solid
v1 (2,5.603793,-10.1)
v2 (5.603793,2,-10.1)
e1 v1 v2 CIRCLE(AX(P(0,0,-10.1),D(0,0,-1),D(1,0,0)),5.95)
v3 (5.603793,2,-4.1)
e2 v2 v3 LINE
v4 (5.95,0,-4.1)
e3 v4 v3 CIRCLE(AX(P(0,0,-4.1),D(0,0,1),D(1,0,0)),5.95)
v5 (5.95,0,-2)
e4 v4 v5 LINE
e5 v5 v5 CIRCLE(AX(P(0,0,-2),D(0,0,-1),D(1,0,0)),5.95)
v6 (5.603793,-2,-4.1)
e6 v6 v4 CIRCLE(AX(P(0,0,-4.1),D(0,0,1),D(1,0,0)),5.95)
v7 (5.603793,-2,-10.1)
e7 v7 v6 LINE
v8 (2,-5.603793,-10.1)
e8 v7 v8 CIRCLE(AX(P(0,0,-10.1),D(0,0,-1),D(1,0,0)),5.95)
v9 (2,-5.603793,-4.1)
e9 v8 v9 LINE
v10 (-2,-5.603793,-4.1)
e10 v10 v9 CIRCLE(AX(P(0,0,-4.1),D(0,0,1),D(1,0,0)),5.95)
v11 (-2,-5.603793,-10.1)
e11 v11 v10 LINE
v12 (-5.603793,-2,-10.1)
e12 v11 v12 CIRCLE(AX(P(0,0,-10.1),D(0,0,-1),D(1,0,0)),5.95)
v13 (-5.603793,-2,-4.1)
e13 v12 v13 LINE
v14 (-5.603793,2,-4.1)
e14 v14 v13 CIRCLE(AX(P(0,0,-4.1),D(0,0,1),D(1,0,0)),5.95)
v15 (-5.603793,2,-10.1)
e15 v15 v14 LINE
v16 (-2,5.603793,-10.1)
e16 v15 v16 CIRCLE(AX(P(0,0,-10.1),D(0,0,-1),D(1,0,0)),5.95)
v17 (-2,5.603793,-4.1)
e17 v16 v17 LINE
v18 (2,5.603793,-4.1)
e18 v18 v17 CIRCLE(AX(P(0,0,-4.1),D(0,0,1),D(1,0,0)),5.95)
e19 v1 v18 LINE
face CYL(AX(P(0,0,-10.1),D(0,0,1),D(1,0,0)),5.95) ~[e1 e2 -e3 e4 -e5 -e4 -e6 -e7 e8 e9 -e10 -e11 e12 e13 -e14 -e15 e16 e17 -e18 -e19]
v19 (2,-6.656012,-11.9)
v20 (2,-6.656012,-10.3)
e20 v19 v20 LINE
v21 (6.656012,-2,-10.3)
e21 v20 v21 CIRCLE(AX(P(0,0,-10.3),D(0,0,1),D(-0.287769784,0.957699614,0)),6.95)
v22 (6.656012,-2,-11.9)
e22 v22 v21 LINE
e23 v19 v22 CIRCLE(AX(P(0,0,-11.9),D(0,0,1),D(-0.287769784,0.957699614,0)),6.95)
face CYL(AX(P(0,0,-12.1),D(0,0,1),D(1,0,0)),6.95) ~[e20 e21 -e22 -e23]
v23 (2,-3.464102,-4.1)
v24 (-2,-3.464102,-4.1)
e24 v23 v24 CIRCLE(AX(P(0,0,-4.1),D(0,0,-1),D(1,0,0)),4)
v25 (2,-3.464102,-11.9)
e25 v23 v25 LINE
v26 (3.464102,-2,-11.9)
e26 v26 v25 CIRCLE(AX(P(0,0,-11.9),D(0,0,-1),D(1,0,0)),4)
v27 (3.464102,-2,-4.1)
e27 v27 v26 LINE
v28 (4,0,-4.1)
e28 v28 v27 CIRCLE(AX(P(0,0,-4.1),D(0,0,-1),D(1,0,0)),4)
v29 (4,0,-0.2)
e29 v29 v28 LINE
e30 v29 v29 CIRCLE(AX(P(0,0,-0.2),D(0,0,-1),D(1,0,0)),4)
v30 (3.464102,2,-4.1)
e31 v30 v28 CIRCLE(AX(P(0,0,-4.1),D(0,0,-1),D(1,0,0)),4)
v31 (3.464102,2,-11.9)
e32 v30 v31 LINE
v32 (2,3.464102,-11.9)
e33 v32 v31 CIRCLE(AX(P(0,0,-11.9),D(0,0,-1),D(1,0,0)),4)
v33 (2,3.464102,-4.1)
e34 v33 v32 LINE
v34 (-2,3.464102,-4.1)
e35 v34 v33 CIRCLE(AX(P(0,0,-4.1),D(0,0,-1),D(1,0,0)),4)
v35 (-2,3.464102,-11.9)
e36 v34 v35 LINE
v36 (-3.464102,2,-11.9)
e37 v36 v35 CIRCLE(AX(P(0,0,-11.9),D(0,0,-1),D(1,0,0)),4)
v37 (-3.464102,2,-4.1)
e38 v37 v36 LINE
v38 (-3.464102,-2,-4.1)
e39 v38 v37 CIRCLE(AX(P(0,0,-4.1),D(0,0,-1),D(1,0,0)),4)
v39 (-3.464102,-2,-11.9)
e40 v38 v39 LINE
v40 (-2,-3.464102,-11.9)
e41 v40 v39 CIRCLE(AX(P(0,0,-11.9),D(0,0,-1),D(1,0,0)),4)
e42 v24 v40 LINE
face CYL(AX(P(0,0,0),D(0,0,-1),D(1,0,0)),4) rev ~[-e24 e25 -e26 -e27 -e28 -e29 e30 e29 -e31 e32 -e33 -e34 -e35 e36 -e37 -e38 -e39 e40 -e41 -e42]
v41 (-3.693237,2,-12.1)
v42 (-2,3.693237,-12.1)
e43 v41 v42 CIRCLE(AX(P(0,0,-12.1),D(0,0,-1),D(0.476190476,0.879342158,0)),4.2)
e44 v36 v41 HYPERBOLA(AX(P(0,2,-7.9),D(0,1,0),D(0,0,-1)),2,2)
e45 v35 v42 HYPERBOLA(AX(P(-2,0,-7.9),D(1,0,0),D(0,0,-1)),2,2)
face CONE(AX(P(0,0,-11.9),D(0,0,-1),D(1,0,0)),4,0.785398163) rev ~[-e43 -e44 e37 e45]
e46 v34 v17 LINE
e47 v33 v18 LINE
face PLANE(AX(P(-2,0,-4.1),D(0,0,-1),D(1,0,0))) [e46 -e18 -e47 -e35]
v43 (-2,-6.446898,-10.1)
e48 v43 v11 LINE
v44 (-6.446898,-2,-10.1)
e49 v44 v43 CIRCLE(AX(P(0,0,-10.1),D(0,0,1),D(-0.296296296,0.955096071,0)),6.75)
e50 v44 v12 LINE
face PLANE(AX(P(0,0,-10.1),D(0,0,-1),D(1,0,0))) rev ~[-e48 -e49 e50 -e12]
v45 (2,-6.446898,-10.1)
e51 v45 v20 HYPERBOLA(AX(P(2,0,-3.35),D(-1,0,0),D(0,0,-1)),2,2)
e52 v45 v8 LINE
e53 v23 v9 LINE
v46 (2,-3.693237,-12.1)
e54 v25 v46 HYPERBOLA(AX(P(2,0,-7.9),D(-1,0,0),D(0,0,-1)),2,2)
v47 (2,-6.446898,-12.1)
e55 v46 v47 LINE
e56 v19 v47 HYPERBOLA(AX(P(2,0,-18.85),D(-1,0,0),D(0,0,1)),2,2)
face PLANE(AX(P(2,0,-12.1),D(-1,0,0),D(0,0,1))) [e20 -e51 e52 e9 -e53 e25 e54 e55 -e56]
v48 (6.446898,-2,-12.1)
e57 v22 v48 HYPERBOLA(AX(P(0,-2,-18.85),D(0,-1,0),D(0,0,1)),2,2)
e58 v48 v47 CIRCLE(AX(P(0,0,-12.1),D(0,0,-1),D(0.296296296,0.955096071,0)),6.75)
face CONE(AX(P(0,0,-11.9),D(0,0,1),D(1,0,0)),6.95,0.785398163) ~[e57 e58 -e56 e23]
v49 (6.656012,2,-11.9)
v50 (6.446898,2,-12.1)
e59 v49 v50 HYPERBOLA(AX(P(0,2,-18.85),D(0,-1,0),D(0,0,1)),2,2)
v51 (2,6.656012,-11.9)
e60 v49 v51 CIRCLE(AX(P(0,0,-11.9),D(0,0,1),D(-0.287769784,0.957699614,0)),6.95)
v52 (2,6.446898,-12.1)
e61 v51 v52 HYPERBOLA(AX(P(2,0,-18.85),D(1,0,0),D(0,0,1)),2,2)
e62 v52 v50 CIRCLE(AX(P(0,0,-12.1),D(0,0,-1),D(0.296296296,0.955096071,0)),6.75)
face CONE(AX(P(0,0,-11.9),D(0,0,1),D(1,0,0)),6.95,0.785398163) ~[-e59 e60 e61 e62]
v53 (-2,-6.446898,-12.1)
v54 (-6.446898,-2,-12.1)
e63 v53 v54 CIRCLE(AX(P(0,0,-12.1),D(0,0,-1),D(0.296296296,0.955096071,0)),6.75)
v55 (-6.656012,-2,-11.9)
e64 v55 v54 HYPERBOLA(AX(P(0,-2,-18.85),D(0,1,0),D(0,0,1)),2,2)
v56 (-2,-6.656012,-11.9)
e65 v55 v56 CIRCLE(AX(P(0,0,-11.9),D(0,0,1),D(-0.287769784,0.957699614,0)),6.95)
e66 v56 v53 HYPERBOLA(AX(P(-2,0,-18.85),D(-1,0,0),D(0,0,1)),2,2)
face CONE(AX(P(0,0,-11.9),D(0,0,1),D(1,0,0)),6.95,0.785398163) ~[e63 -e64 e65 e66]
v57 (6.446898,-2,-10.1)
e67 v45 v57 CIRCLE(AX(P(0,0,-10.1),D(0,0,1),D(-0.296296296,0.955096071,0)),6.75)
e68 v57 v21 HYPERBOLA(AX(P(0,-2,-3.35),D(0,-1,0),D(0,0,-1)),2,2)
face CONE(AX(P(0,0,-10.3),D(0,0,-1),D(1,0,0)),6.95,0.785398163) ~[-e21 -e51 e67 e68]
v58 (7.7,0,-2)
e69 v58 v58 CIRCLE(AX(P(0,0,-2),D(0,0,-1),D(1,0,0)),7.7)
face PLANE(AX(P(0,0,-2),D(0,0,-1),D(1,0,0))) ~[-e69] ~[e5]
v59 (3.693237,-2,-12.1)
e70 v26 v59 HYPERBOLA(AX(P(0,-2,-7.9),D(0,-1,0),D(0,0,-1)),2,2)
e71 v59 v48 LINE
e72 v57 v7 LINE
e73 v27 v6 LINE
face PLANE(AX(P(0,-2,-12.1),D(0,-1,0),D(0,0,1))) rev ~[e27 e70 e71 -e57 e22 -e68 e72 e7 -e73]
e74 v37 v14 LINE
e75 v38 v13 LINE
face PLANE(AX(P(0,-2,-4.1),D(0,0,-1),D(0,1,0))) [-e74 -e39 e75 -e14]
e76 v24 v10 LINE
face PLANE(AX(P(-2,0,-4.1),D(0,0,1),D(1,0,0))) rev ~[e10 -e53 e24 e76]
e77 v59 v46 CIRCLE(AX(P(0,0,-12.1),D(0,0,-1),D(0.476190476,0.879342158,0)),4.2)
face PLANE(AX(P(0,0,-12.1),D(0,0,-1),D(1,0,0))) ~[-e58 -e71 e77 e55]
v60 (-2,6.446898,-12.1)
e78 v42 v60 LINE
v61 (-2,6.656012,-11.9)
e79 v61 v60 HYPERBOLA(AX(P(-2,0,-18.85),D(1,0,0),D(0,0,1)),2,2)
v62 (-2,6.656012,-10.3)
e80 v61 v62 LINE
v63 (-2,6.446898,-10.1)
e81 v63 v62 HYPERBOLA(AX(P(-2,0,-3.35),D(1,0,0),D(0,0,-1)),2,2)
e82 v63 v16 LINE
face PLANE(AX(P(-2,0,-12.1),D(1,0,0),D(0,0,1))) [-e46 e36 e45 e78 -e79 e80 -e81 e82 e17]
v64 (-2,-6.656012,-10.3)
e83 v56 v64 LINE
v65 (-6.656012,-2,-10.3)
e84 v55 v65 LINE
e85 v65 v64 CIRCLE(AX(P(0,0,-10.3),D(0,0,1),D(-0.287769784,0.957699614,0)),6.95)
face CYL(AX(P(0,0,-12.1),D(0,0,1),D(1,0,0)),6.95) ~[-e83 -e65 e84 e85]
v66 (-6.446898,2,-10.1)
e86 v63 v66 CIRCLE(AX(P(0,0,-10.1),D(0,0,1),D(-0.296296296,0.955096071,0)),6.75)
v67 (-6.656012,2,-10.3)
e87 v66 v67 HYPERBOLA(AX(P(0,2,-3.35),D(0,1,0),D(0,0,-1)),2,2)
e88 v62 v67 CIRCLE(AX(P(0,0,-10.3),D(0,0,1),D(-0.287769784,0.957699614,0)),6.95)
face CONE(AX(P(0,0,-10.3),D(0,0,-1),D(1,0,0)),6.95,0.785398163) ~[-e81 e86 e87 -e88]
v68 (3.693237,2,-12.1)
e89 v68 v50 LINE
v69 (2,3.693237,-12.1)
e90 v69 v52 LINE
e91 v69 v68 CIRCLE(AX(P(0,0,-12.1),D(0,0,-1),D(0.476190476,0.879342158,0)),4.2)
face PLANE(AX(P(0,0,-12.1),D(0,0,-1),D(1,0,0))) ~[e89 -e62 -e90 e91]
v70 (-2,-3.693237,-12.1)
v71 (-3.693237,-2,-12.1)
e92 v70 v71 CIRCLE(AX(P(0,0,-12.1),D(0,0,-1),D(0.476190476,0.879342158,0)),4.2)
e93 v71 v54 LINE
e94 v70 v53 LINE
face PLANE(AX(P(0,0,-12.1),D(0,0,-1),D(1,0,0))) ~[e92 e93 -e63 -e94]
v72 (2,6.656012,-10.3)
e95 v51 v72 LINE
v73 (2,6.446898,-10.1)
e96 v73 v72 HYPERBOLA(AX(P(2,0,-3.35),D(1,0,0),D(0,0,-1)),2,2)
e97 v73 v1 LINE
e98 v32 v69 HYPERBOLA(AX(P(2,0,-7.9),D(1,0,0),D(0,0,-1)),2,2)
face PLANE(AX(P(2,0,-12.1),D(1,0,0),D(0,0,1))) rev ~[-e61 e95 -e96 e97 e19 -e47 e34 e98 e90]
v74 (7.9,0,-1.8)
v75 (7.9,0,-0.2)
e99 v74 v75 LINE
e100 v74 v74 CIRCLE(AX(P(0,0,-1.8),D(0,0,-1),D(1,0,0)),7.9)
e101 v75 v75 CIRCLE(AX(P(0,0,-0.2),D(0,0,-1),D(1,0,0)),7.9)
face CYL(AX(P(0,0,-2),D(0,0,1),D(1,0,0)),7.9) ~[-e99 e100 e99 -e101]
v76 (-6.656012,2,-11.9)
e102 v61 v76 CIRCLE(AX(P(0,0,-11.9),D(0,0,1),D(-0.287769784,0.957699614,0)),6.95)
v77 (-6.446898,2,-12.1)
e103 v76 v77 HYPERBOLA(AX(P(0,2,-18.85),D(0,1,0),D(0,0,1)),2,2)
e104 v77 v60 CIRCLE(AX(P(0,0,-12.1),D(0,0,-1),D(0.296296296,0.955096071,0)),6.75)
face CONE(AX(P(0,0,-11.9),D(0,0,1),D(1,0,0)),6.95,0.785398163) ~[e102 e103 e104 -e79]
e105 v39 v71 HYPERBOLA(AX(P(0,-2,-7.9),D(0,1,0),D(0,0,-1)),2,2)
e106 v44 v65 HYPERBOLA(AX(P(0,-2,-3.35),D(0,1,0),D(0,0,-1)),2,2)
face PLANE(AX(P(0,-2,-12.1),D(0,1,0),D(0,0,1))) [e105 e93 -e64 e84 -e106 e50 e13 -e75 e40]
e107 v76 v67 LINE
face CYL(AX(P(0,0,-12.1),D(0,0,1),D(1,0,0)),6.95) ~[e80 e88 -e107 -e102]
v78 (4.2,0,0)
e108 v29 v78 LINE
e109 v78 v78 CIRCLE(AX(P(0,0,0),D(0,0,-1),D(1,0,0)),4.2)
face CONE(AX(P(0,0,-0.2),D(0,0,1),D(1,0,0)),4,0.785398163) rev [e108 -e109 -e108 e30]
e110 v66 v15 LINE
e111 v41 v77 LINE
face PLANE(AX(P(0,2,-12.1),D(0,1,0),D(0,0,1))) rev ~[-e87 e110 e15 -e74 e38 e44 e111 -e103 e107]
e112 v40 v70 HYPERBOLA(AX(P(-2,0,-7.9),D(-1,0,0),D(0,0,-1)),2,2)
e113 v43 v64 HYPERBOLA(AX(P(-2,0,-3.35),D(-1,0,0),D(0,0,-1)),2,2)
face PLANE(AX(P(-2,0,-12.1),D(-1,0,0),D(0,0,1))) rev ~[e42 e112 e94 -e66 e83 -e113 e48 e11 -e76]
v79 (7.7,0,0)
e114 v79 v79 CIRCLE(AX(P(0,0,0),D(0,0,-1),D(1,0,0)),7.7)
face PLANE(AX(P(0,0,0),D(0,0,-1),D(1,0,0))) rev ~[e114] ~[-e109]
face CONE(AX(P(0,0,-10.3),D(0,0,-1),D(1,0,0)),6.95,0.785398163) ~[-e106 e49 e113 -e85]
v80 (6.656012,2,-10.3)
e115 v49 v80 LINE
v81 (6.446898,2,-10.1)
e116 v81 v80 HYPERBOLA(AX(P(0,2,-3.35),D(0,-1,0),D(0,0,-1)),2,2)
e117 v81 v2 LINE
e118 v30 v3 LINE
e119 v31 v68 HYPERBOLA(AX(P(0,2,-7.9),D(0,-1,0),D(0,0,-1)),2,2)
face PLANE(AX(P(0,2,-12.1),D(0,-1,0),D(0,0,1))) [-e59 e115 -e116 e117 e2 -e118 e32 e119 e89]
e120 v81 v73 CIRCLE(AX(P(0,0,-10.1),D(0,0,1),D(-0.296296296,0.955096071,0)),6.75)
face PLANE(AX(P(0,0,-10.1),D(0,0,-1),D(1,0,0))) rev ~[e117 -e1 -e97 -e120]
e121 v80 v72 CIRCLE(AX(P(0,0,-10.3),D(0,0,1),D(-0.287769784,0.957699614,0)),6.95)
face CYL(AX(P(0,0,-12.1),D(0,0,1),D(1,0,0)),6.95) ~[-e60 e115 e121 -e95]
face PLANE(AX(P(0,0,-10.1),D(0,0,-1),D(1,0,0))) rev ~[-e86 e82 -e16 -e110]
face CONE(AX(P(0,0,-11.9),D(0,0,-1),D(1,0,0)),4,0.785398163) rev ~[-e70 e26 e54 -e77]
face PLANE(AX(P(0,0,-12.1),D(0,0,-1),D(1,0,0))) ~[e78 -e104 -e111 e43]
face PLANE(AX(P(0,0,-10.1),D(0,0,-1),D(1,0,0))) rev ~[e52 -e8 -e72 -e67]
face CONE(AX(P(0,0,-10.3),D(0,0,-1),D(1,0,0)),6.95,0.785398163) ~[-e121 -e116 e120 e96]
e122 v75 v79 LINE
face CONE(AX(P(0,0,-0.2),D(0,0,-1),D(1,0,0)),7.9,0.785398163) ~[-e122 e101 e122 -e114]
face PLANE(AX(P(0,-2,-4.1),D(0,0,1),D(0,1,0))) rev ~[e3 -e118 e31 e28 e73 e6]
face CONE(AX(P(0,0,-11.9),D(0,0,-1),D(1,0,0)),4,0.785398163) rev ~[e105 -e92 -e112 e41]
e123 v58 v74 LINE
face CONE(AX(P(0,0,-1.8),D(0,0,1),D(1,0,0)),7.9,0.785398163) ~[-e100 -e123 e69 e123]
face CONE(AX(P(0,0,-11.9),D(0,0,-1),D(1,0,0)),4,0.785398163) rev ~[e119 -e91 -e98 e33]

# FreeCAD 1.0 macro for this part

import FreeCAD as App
import Part
import Sketcher

V = App.Vector
Q = App.Units.Quantity


def edges_at(feature, points):
    """Names of the edges that pass closest to the given points."""
    edges = feature.Shape.Edges
    near = lambda p: min(range(len(edges)), key=lambda i: edges[i].distToShape(Part.Vertex(*p))[0])
    return sorted({f"Edge{near(p) + 1}" for p in points})


def add_polygon(sketch, points):
    """Adds a closed chain of lines whose ends are joined by coincident constraints."""
    first, n = sketch.GeometryCount, len(points)
    for a, b in zip(points, points[1:] + points[:1]):
        sketch.addGeometry(Part.LineSegment(App.Vector(*a, 0), App.Vector(*b, 0)), False)
    for i in range(n):
        sketch.addConstraint(Sketcher.Constraint("Coincident", first + i, 2, first + (i + 1) % n, 1))

doc = App.newDocument("Part")
body = doc.addObject("PartDesign::Body", "Body")

# Sketch on XZ plane
sketch1 = doc.addObject("Sketcher::SketchObject", "Sketch")
body.addObject(sketch1)
sketch1.AttachmentSupport = (doc.XZ_Plane, [""])
sketch1.MapMode = "FlatFace"
add_polygon(sketch1, [(4, 0), (4, -12.1), (7, -12.1), (7, -10.1), (6, -10.1), (6, -2), (7.9, -2), (7.9, 0)])  # lines 0-7
sketch1.addConstraint([
    Sketcher.Constraint("Vertical", 0),
    Sketcher.Constraint("Horizontal", 1),
    Sketcher.Constraint("Vertical", 2),
    Sketcher.Constraint("Horizontal", 3),
    Sketcher.Constraint("Vertical", 4),
    Sketcher.Constraint("Horizontal", 5),
    Sketcher.Constraint("Vertical", 6),
    Sketcher.Constraint("Horizontal", 7),
    Sketcher.Constraint("PointOnObject", 6, 2, -1),
    Sketcher.Constraint("Equal", 2, 6),
    Sketcher.Constraint("DistanceX", 3, 2, 3, 1, Q("1 mm")),
    Sketcher.Constraint("DistanceY", 2, 1, 2, 2, Q("2 mm")),
    Sketcher.Constraint("DistanceX", 7, 2, 7, 1, Q("3.9 mm")),
    Sketcher.Constraint("DistanceY", 0, 2, 0, 1, Q("12.1 mm")),
    Sketcher.Constraint("DistanceX", -1, 1, 0, 2, Q("4 mm")),
    Sketcher.Constraint("DistanceX", 1, 1, 1, 2, Q("2.95 mm")),
])
revolution = doc.addObject("PartDesign::Revolution", "Revolution")
body.addObject(revolution)
revolution.Profile = sketch1
revolution.ReferenceAxis = (sketch1, ["V_Axis"])
revolution.Angle = 360
doc.recompute()

chamfer = doc.addObject("PartDesign::Chamfer", "Chamfer")
body.addObject(chamfer)
chamfer.Base = (revolution, edges_at(revolution, [
    (-4, 0, 0),
    (-4, 0, -12.1),
    (4, 0, -6.05),
    (-7.9, 0, -2),
    (-7.9, 0, 0),
    (7.9, 0, -1),
    (-6.95, 0, -12.1),
    (-6.95, 0, -10.1),
    (6.95, 0, -11.1),
]))
chamfer.Size = 0.2

# Sketch on XZ plane
sketch2 = doc.addObject("Sketcher::SketchObject", "Sketch001")
body.addObject(sketch2)
sketch2.AttachmentSupport = (doc.XZ_Plane, [""])
sketch2.MapMode = "FlatFace"
add_polygon(sketch2, [(-2, -4.1), (-2, -12.1), (2, -12.1), (2, -4.1)])  # lines 0-3
sketch2.addConstraint([
    Sketcher.Constraint("Vertical", 0),
    Sketcher.Constraint("Horizontal", 1),
    Sketcher.Constraint("Vertical", 2),
    Sketcher.Constraint("Horizontal", 3),
    Sketcher.Constraint("DistanceX", 1, 1, 1, 2, Q("4 mm")),
    Sketcher.Constraint("DistanceY", 0, 2, 0, 1, Q("8 mm")),
    Sketcher.Constraint("DistanceX", 0, 2, -1, 1, Q("2 mm")),
    Sketcher.Constraint("DistanceY", 0, 2, -1, 1, Q("12.1 mm")),
])
pocket1 = doc.addObject("PartDesign::Pocket", "Pocket")
body.addObject(pocket1)
pocket1.Profile = sketch2
pocket1.Type = "ThroughAll"
pocket1.Midplane = True

# Sketch on YZ plane
sketch3 = doc.addObject("Sketcher::SketchObject", "Sketch002")
body.addObject(sketch3)
sketch3.AttachmentSupport = (doc.YZ_Plane, [""])
sketch3.MapMode = "FlatFace"
add_polygon(sketch3, [(-2, -4.1), (-2, -12.1), (2, -12.1), (2, -4.1)])  # lines 0-3
sketch3.addConstraint([
    Sketcher.Constraint("Vertical", 0),
    Sketcher.Constraint("Horizontal", 1),
    Sketcher.Constraint("Vertical", 2),
    Sketcher.Constraint("Horizontal", 3),
    Sketcher.Constraint("DistanceX", 1, 1, 1, 2, Q("4 mm")),
    Sketcher.Constraint("DistanceY", 0, 2, 0, 1, Q("8 mm")),
    Sketcher.Constraint("DistanceX", 0, 2, -1, 1, Q("2 mm")),
    Sketcher.Constraint("DistanceY", 0, 2, -1, 1, Q("12.1 mm")),
])
pocket2 = doc.addObject("PartDesign::Pocket", "Pocket001")
body.addObject(pocket2)
pocket2.Profile = sketch3
pocket2.Type = "ThroughAll"
pocket2.Midplane = True

doc.recompute()
